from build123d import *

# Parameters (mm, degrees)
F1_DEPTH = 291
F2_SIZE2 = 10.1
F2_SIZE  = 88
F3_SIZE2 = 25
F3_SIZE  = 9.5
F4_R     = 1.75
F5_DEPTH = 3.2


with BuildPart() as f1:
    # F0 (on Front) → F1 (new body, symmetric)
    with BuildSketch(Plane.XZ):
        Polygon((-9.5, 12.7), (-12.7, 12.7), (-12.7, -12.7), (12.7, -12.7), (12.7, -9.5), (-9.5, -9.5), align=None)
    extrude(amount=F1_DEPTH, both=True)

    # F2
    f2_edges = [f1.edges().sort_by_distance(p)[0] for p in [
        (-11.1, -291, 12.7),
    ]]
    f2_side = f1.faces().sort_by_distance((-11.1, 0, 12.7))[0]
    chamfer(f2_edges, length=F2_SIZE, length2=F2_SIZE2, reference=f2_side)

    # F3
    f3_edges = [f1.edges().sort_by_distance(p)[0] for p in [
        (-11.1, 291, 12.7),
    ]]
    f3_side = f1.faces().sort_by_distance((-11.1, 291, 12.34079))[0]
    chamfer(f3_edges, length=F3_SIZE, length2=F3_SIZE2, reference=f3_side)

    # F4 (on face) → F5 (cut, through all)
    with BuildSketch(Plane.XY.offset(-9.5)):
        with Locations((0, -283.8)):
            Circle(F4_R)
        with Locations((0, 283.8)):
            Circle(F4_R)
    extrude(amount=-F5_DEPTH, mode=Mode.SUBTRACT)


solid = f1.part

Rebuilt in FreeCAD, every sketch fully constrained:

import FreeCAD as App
import Part
import Sketcher
from FreeCAD import Vector
Q = App.Units.Quantity


def edges_at(feature, points):
    """Names of the edges that pass closest to the given points."""
    edges = feature.Shape.Edges
    near = lambda p: min(range(len(edges)), key=lambda i: edges[i].distToShape(Part.Vertex(*p))[0])
    return sorted({f"Edge{near(p) + 1}" for p in points})

doc = App.newDocument("Part")
body = doc.addObject("PartDesign::Body", "Body")

sketch1 = doc.addObject("Sketcher::SketchObject", "Sketch")
body.addObject(sketch1)
sketch1.AttachmentSupport = (doc.XZ_Plane, [""])
sketch1.MapMode = "FlatFace"
sketch1.addGeometry([
    Part.LineSegment(Vector(-9.5, 12.7, 0), Vector(-12.7, 12.7, 0)),
    Part.LineSegment(Vector(-12.7, 12.7, 0), Vector(-12.7, -12.7, 0)),
    Part.LineSegment(Vector(-12.7, -12.7, 0), Vector(12.7, -12.7, 0)),
    Part.LineSegment(Vector(12.7, -12.7, 0), Vector(12.7, -9.5, 0)),
    Part.LineSegment(Vector(12.7, -9.5, 0), Vector(-9.5, -9.5, 0)),
    Part.LineSegment(Vector(-9.5, -9.5, 0), Vector(-9.5, 12.7, 0)),
], False)
sketch1.addConstraint([
    Sketcher.Constraint("Coincident", 0, 2, 1, 1),
    Sketcher.Constraint("Coincident", 1, 2, 2, 1),
    Sketcher.Constraint("Coincident", 2, 2, 3, 1),
    Sketcher.Constraint("Coincident", 3, 2, 4, 1),
    Sketcher.Constraint("Coincident", 4, 2, 5, 1),
    Sketcher.Constraint("Coincident", 5, 2, 0, 1),
    Sketcher.Constraint("Horizontal", 0),
    Sketcher.Constraint("Vertical", 1),
    Sketcher.Constraint("Horizontal", 2),
    Sketcher.Constraint("Vertical", 3),
    Sketcher.Constraint("Horizontal", 4),
    Sketcher.Constraint("Vertical", 5),
    Sketcher.Constraint("Symmetric", 0, 2, 2, 2, -1, 1),
    Sketcher.Constraint("Equal", 2, 1),
    Sketcher.Constraint("Equal", 0, 3),
    Sketcher.Constraint("DistanceX", 0, 2, 0, 1, Q("3.2 mm")),
    Sketcher.Constraint("DistanceX", 2, 1, 2, 2, Q("25.4 mm")),
])
pad1 = doc.addObject("PartDesign::Pad", "Pad")
body.addObject(pad1)
pad1.Profile = sketch1
pad1.Length = 582
pad1.Midplane = True
doc.recompute()

chamfer = doc.addObject("PartDesign::Chamfer", "Chamfer")
body.addObject(chamfer)
chamfer.Base = (pad1, edges_at(pad1, [(-11.1, -291, 12.7)]))
chamfer.ChamferType = "Two distances"
chamfer.Size = 88
chamfer.Size2 = 10.1
doc.recompute()

chamfer2 = doc.addObject("PartDesign::Chamfer", "Chamfer001")
body.addObject(chamfer2)
chamfer2.Base = (chamfer, edges_at(chamfer, [(-11.1, 291, 12.7)]))
chamfer2.ChamferType = "Two distances"
chamfer2.Size = 9.5
chamfer2.Size2 = 25
chamfer2.FlipDirection = True

sketch2 = doc.addObject("Sketcher::SketchObject", "Sketch001")
body.addObject(sketch2)
sketch2.AttachmentSupport = (doc.XY_Plane, [""])
sketch2.MapMode = "FlatFace"
sketch2.AttachmentOffset = App.Placement(Vector(0, 0, -9.5), App.Rotation())
sketch2.addGeometry([
    Part.Circle(Vector(0, -283.8, 0), Vector(0, 0, 1), 1.8),
    Part.Circle(Vector(0, 283.8, 0), Vector(0, 0, 1), 1.8),
], False)
sketch2.addConstraint([
    Sketcher.Constraint("Equal", 0, 1),
    Sketcher.Constraint("Symmetric", 0, 3, 1, 3, -1, 1),
    Sketcher.Constraint("PointOnObject", 0, 3, -2),
    Sketcher.Constraint("Diameter", 0, Q("3.5 mm")),
    Sketcher.Constraint("DistanceY", 0, 3, -1, 1, Q("283.8 mm")),
])
pocket1 = doc.addObject("PartDesign::Pocket", "Pocket")
body.addObject(pocket1)
pocket1.Profile = sketch2
pocket1.Type = "ThroughAll"

doc.recompute()
